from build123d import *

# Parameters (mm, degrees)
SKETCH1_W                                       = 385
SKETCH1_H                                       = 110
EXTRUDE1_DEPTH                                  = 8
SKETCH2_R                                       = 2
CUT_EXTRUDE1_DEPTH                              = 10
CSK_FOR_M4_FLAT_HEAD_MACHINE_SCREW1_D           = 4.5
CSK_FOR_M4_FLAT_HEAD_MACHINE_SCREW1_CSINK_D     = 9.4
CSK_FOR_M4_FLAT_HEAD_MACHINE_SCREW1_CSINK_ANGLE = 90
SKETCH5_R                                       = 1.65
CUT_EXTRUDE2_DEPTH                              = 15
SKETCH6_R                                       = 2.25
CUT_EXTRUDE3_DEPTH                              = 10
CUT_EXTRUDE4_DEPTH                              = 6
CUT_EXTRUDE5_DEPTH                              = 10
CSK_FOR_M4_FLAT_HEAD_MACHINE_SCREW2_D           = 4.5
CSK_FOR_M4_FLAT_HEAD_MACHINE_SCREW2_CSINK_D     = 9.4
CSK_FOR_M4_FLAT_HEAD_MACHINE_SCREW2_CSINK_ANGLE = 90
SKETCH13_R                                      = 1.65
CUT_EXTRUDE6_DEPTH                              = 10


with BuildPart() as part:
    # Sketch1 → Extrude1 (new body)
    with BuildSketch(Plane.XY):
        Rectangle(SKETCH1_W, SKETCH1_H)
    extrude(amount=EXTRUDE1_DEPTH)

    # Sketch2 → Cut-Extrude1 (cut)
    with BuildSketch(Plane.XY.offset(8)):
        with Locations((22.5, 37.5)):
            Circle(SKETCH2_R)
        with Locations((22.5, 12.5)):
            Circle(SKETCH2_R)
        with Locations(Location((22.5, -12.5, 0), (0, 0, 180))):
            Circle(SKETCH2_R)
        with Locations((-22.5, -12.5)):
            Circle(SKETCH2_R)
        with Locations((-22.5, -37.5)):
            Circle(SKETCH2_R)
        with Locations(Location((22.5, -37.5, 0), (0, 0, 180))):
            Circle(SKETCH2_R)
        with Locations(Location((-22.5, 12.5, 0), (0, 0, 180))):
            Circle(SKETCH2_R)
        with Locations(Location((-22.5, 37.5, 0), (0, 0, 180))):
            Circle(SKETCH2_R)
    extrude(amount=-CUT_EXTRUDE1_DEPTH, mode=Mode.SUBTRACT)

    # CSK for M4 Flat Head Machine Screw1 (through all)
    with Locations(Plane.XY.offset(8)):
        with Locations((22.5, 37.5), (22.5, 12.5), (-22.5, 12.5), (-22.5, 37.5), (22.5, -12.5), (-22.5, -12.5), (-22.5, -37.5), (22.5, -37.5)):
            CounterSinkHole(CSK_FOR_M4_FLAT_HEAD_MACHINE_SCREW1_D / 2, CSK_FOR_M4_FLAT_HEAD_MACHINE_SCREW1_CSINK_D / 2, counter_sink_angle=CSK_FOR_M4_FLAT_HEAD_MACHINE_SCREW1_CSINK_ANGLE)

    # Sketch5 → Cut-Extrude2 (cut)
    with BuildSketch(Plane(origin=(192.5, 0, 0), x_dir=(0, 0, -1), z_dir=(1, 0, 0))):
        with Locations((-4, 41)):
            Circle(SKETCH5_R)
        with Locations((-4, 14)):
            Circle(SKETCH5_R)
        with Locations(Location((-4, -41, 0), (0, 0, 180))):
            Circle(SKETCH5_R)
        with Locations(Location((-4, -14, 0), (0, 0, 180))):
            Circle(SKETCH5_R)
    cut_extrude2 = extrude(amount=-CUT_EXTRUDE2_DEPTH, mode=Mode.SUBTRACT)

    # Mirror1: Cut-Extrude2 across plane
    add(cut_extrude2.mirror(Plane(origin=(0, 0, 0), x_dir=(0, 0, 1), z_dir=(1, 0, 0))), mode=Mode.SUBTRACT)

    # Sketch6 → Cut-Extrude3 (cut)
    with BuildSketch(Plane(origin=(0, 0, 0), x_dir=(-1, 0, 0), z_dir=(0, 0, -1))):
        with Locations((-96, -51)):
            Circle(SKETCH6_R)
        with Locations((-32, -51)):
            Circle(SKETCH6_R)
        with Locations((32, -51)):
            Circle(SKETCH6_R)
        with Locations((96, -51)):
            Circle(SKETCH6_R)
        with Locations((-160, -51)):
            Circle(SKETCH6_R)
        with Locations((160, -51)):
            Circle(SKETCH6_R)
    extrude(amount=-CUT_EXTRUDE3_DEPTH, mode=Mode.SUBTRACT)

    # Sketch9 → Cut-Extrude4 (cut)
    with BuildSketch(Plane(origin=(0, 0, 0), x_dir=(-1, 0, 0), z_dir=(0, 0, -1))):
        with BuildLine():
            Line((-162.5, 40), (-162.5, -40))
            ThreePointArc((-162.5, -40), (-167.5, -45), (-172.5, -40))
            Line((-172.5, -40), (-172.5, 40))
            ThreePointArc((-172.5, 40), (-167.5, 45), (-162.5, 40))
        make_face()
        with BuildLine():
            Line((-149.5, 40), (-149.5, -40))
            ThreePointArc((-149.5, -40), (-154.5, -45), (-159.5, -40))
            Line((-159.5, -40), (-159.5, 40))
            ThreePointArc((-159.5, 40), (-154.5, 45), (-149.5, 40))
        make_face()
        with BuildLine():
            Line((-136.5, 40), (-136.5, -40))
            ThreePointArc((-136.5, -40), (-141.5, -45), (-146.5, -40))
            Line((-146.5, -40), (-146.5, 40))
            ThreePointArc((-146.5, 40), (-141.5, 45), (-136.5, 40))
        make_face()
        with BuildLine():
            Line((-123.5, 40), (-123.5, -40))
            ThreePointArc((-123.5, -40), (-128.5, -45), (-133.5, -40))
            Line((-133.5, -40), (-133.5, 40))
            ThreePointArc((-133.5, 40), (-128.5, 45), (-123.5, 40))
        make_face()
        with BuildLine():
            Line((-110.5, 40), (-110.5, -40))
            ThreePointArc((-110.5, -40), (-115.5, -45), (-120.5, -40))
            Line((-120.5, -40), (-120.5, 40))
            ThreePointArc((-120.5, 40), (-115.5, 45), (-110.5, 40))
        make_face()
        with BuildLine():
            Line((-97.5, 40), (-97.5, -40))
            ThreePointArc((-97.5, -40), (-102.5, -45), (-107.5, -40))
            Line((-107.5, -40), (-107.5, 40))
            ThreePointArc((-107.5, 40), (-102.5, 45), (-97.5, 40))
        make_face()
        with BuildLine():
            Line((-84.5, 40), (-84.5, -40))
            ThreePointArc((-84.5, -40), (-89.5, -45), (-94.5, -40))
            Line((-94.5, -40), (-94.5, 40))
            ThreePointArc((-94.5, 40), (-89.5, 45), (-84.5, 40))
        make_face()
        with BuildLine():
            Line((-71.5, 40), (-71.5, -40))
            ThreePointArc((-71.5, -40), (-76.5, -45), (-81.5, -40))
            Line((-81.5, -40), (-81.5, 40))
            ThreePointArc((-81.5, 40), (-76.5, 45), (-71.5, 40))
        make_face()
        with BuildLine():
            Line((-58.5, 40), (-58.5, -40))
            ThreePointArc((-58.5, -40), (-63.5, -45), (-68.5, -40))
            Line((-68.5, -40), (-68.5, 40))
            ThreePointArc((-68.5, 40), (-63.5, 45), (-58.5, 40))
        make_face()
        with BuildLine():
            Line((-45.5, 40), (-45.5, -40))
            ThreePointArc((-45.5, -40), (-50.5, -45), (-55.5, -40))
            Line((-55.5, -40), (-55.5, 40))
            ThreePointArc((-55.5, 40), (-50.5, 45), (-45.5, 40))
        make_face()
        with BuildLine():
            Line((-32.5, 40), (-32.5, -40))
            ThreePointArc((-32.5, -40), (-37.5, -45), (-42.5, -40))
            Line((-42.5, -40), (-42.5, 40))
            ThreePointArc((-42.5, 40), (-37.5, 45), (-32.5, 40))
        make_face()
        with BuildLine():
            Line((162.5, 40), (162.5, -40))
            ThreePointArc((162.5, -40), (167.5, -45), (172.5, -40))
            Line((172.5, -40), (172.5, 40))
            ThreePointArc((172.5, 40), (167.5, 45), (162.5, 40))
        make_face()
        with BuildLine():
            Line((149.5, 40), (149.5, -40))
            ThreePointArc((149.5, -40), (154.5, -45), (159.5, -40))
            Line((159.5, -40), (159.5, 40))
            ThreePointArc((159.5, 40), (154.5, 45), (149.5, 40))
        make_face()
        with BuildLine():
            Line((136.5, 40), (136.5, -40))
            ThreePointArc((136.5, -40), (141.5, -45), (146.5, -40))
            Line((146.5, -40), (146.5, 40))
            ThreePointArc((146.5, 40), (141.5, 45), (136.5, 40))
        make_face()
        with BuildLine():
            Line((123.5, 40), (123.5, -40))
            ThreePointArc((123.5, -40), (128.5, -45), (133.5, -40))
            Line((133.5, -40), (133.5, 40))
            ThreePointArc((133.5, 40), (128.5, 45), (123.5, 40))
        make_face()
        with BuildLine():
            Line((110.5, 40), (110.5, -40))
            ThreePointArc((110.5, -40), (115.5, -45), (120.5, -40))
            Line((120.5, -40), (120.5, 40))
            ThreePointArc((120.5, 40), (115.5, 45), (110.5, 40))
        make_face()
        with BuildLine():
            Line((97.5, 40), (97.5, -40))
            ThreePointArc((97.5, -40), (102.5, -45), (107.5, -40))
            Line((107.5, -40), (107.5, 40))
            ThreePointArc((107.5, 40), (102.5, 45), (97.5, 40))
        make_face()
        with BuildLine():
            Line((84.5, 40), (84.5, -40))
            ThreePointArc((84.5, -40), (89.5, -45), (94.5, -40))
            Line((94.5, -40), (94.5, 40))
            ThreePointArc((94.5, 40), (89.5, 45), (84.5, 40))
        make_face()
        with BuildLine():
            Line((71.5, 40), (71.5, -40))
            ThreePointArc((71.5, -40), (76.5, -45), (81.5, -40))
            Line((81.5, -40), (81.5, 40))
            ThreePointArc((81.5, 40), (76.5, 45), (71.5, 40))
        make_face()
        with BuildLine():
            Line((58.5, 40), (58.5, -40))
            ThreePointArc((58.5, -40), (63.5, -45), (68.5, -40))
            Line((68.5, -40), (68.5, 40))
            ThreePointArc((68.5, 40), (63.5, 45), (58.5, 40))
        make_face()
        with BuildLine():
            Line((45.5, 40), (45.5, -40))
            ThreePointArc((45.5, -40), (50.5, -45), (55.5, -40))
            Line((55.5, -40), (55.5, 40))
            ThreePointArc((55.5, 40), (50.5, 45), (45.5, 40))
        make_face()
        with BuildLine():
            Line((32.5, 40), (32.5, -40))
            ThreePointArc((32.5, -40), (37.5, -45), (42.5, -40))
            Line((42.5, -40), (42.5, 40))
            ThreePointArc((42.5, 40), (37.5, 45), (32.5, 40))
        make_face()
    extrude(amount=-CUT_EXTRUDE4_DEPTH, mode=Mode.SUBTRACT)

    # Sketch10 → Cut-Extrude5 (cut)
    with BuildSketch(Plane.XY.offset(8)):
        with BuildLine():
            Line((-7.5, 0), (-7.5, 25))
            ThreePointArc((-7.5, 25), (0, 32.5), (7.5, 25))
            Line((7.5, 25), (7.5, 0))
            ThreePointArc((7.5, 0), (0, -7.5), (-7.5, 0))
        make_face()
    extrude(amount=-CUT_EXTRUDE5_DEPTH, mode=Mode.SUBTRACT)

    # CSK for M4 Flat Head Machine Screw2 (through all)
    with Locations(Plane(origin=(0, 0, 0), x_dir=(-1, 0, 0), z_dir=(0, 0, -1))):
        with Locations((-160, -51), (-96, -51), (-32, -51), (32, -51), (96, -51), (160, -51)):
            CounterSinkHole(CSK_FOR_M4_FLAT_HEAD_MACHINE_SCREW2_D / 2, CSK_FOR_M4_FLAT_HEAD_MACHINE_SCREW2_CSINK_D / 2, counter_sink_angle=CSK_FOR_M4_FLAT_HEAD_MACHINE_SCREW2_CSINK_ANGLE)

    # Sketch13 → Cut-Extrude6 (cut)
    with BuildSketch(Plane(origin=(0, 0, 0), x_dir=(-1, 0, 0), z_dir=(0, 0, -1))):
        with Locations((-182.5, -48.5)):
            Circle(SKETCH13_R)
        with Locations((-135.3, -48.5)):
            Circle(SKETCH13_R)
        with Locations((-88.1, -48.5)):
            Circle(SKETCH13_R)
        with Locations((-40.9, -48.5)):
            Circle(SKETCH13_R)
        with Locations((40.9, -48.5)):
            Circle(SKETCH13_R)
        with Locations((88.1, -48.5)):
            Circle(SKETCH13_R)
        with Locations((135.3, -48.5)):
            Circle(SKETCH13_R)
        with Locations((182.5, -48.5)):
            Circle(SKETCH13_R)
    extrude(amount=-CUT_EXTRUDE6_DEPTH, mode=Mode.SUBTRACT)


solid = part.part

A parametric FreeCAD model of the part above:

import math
import FreeCAD as App
import Part
import Sketcher

V = App.Vector


def add_polygon(sketch, points):
    """Adds a closed chain of lines whose ends are joined by coincident constraints."""
    first, n = sketch.GeometryCount, len(points)
    for a, b in zip(points, points[1:] + points[:1]):
        sketch.addGeometry(Part.LineSegment(App.Vector(*a, 0), App.Vector(*b, 0)), False)
    for i in range(n):
        sketch.addConstraint(Sketcher.Constraint("Coincident", first + i, 2, first + (i + 1) % n, 1))

doc = App.newDocument("Part")
body = doc.addObject("PartDesign::Body", "Body")

# Sketch on XY plane
sketch1 = body.newObject("Sketcher::SketchObject", "Sketch")
sketch1.AttachmentSupport = (doc.getObject("XY_Plane"), [""])
sketch1.MapMode = "FlatFace"
add_polygon(sketch1, [(-192, 55), (-192, -55), (192, -55), (192, 55)])  # lines 0-3
sketch1.addConstraint([
    Sketcher.Constraint("Vertical", 0),
    Sketcher.Constraint("Horizontal", 1),
    Sketcher.Constraint("Vertical", 2),
    Sketcher.Constraint("Horizontal", 3),
    Sketcher.Constraint("Symmetric", 0, 2, 2, 2, -1, 1),
    Sketcher.Constraint("DistanceX", 1, 1, 1, 2, 385.0),
    Sketcher.Constraint("DistanceY", 0, 2, 0, 1, 110.0),
])
pad1 = body.newObject("PartDesign::Pad", "Pad")
pad1.Profile = sketch1
pad1.Length = 8

# Sketch on XY plane
sketch2 = body.newObject("Sketcher::SketchObject", "Sketch001")
sketch2.AttachmentSupport = (doc.getObject("XY_Plane"), [""])
sketch2.MapMode = "FlatFace"
sketch2.AttachmentOffset = App.Placement(V(0, 0, 8), App.Rotation())
sketch2.addGeometry([
    Part.Circle(V(22.5, 37.5, 0), V(0, 0, 1), 2),  # 0
    Part.Circle(V(22.5, 12.5, 0), V(0, 0, 1), 2),  # 1
    Part.Circle(V(22.5, -12.5, 0), V(0, 0, 1), 2),  # 2
    Part.Circle(V(-22.5, -12.5, 0), V(0, 0, 1), 2),  # 3
    Part.Circle(V(-22.5, -37.5, 0), V(0, 0, 1), 2),  # 4
    Part.Circle(V(22.5, -37.5, 0), V(0, 0, 1), 2),  # 5
    Part.Circle(V(-22.5, 12.5, 0), V(0, 0, 1), 2),  # 6
    Part.Circle(V(-22.5, 37.5, 0), V(0, 0, 1), 2),  # 7
], False)
sketch2.addConstraint([
    Sketcher.Constraint("Equal", 0, 1),
    Sketcher.Constraint("Equal", 1, 2),
    Sketcher.Constraint("Equal", 2, 3),
    Sketcher.Constraint("Equal", 3, 4),
    Sketcher.Constraint("Equal", 4, 5),
    Sketcher.Constraint("Equal", 5, 6),
    Sketcher.Constraint("Equal", 6, 7),
    Sketcher.Constraint("Symmetric", 1, 3, 3, 3, -1, 1),
    Sketcher.Constraint("Symmetric", 0, 3, 4, 3, -1, 1),
    Sketcher.Constraint("Symmetric", 2, 3, 6, 3, -1, 1),
    Sketcher.Constraint("Symmetric", 5, 3, 7, 3, -1, 1),
    Sketcher.Constraint("Symmetric", 2, 3, 3, 3, -2),
    Sketcher.Constraint("Symmetric", 4, 3, 5, 3, -2),
    Sketcher.Constraint("Vertical", 0, 3, 1, 3),
    Sketcher.Constraint("Diameter", 0, 4.0),
    Sketcher.Constraint("DistanceY", 1, 3, 0, 3, 25.0),
    Sketcher.Constraint("DistanceY", 2, 3, 1, 3, 25.0),
    Sketcher.Constraint("DistanceX", 3, 3, 2, 3, 45.0),
])
pocket1 = body.newObject("PartDesign::Pocket", "Pocket")
pocket1.Profile = sketch2
pocket1.Length = 10

# Sketch on XY plane
sketch3 = body.newObject("Sketcher::SketchObject", "Sketch002")
sketch3.AttachmentSupport = (doc.getObject("XY_Plane"), [""])
sketch3.MapMode = "FlatFace"
sketch3.AttachmentOffset = App.Placement(V(0, 0, 8), App.Rotation())
sketch3.addGeometry([
    Part.Circle(V(22.5, 37.5, 0), V(0, 0, 1), 2.2),  # 0
    Part.Circle(V(22.5, 12.5, 0), V(0, 0, 1), 2.2),  # 1
    Part.Circle(V(-22.5, 12.5, 0), V(0, 0, 1), 2.2),  # 2
    Part.Circle(V(-22.5, 37.5, 0), V(0, 0, 1), 2.2),  # 3
    Part.Circle(V(22.5, -12.5, 0), V(0, 0, 1), 2.2),  # 4
    Part.Circle(V(-22.5, -12.5, 0), V(0, 0, 1), 2.2),  # 5
    Part.Circle(V(-22.5, -37.5, 0), V(0, 0, 1), 2.2),  # 6
    Part.Circle(V(22.5, -37.5, 0), V(0, 0, 1), 2.2),  # 7
], False)
sketch3.addConstraint([
    Sketcher.Constraint("Equal", 0, 1),
    Sketcher.Constraint("Equal", 1, 2),
    Sketcher.Constraint("Equal", 2, 3),
    Sketcher.Constraint("Equal", 3, 4),
    Sketcher.Constraint("Equal", 4, 5),
    Sketcher.Constraint("Equal", 5, 6),
    Sketcher.Constraint("Equal", 6, 7),
    Sketcher.Constraint("Symmetric", 2, 3, 4, 3, -1, 1),
    Sketcher.Constraint("Symmetric", 1, 3, 5, 3, -1, 1),
    Sketcher.Constraint("Symmetric", 0, 3, 6, 3, -1, 1),
    Sketcher.Constraint("Symmetric", 3, 3, 7, 3, -1, 1),
    Sketcher.Constraint("Symmetric", 1, 3, 2, 3, -2),
    Sketcher.Constraint("Symmetric", 0, 3, 3, 3, -2),
    Sketcher.Constraint("Vertical", 0, 3, 1, 3),
    Sketcher.Constraint("Diameter", 0, 4.5),
    Sketcher.Constraint("DistanceY", 1, 3, 0, 3, 25.0),
    Sketcher.Constraint("DistanceX", 2, 3, 1, 3, 45.0),
    Sketcher.Constraint("DistanceY", 4, 3, 1, 3, 25.0),
])
doc.recompute()
hole = body.newObject("PartDesign::Hole", "Hole")
hole.Profile = sketch3
hole.ThreadType = "None"
hole.Diameter = 4.5
hole.DepthType = "ThroughAll"
hole.HoleCutType = "Countersink"
hole.HoleCutDiameter = 9.4
hole.HoleCutCountersinkAngle = 90

# Sketch on YZ plane
sketch4 = body.newObject("Sketcher::SketchObject", "Sketch003")
sketch4.AttachmentSupport = (doc.getObject("YZ_Plane"), [""])
sketch4.MapMode = "FlatFace"
sketch4.AttachmentOffset = App.Placement(V(0, 0, 192.5), App.Rotation())
sketch4.addGeometry([
    Part.Circle(V(41, 4, 0), V(0, 0, 1), 1.6),
    Part.Circle(V(14, 4, 0), V(0, 0, 1), 1.6),
    Part.Circle(V(-41, 4, 0), V(0, 0, 1), 1.6),
    Part.Circle(V(-14, 4, 0), V(0, 0, 1), 1.6),
], False)
sketch4.addConstraint([
    Sketcher.Constraint("Equal", 0, 1),
    Sketcher.Constraint("Equal", 1, 2),
    Sketcher.Constraint("Equal", 2, 3),
    Sketcher.Constraint("Symmetric", 0, 3, 2, 3, -2),
    Sketcher.Constraint("Symmetric", 1, 3, 3, 3, -2),
    Sketcher.Constraint("Horizontal", 0, 3, 1, 3),
    Sketcher.Constraint("Diameter", 0, 3.3),
    Sketcher.Constraint("DistanceX", -1, 1, 0, 3, 41.0),
    Sketcher.Constraint("DistanceY", -1, 1, 0, 3, 4.0),
    Sketcher.Constraint("DistanceX", -1, 1, 1, 3, 14.0),
])
pocket2 = body.newObject("PartDesign::Pocket", "Pocket001")
pocket2.Profile = sketch4
pocket2.Length = 15
doc.recompute()

mirrored = body.newObject("PartDesign::Mirrored", "Mirrored")
mirrored.Originals = [pocket2]
mirrored.MirrorPlane = (doc.getObject("YZ_Plane"), [""])
body.Tip = mirrored

# Sketch on XY plane
sketch5 = body.newObject("Sketcher::SketchObject", "Sketch004")
sketch5.AttachmentSupport = (doc.getObject("XY_Plane"), [""])
sketch5.MapMode = "FlatFace"
sketch5.addGeometry([
    Part.Circle(V(96, -51, 0), V(0, 0, 1), 2.2),  # 0
    Part.Circle(V(32, -51, 0), V(0, 0, 1), 2.2),  # 1
    Part.Circle(V(-32, -51, 0), V(0, 0, 1), 2.2),  # 2
    Part.Circle(V(-96, -51, 0), V(0, 0, 1), 2.2),  # 3
    Part.Circle(V(160, -51, 0), V(0, 0, 1), 2.2),  # 4
    Part.Circle(V(-160, -51, 0), V(0, 0, 1), 2.2),  # 5
], False)
sketch5.addConstraint([
    Sketcher.Constraint("Equal", 0, 1),
    Sketcher.Constraint("Equal", 1, 2),
    Sketcher.Constraint("Equal", 2, 3),
    Sketcher.Constraint("Equal", 3, 4),
    Sketcher.Constraint("Equal", 4, 5),
    Sketcher.Constraint("Symmetric", 1, 3, 2, 3, -2),
    Sketcher.Constraint("Symmetric", 0, 3, 3, 3, -2),
    Sketcher.Constraint("Symmetric", 4, 3, 5, 3, -2),
    Sketcher.Constraint("Horizontal", 0, 3, 1, 3),
    Sketcher.Constraint("Horizontal", 3, 3, 4, 3),
    Sketcher.Constraint("Diameter", 0, 4.5),
    Sketcher.Constraint("DistanceX", -1, 1, 0, 3, 96.0),
    Sketcher.Constraint("DistanceY", 0, 3, -1, 1, 51.0),
    Sketcher.Constraint("DistanceX", -1, 1, 1, 3, 32.0),
    Sketcher.Constraint("DistanceX", -1, 1, 4, 3, 160.0),
])
pocket3 = body.newObject("PartDesign::Pocket", "Pocket002")
pocket3.Profile = sketch5
pocket3.Length = 10
pocket3.Reversed = True

# Sketch on XY plane
sketch6 = body.newObject("Sketcher::SketchObject", "Sketch005")
sketch6.AttachmentSupport = (doc.getObject("XY_Plane"), [""])
sketch6.MapMode = "FlatFace"
sketch6.addGeometry([
    Part.LineSegment(V(162, -40, 0), V(162, 40, 0)),  # 0
    Part.ArcOfCircle(Part.Circle(V(168, 40, 0), V(0, 0, 1), 5), math.radians(0), math.radians(180)),  # 1
    Part.LineSegment(V(172, 40, 0), V(172, -40, 0)),  # 2
    Part.ArcOfCircle(Part.Circle(V(168, -40, 0), V(0, 0, 1), 5), math.radians(180), math.radians(360)),  # 3
    Part.LineSegment(V(150, -40, 0), V(150, 40, 0)),  # 4
    Part.ArcOfCircle(Part.Circle(V(154, 40, 0), V(0, 0, 1), 5), math.radians(0), math.radians(180)),  # 5
    Part.LineSegment(V(160, 40, 0), V(160, -40, 0)),  # 6
    Part.ArcOfCircle(Part.Circle(V(154, -40, 0), V(0, 0, 1), 5), math.radians(180), math.radians(360)),  # 7
    Part.LineSegment(V(136, -40, 0), V(136, 40, 0)),  # 8
    Part.ArcOfCircle(Part.Circle(V(142, 40, 0), V(0, 0, 1), 5), math.radians(0), math.radians(180)),  # 9
    Part.LineSegment(V(146, 40, 0), V(146, -40, 0)),  # 10
    Part.ArcOfCircle(Part.Circle(V(142, -40, 0), V(0, 0, 1), 5), math.radians(180), math.radians(360)),  # 11
    Part.LineSegment(V(124, -40, 0), V(124, 40, 0)),  # 12
    Part.ArcOfCircle(Part.Circle(V(128, 40, 0), V(0, 0, 1), 5), math.radians(0), math.radians(180)),  # 13
    Part.LineSegment(V(134, 40, 0), V(134, -40, 0)),  # 14
    Part.ArcOfCircle(Part.Circle(V(128, -40, 0), V(0, 0, 1), 5), math.radians(180), math.radians(360)),  # 15
    Part.LineSegment(V(110, -40, 0), V(110, 40, 0)),  # 16
    Part.ArcOfCircle(Part.Circle(V(116, 40, 0), V(0, 0, 1), 5), math.radians(0), math.radians(180)),  # 17
    Part.LineSegment(V(120, 40, 0), V(120, -40, 0)),  # 18
    Part.ArcOfCircle(Part.Circle(V(116, -40, 0), V(0, 0, 1), 5), math.radians(180), math.radians(360)),  # 19
    Part.LineSegment(V(98, -40, 0), V(98, 40, 0)),  # 20
    Part.ArcOfCircle(Part.Circle(V(102, 40, 0), V(0, 0, 1), 5), math.radians(0), math.radians(180)),  # 21
    Part.LineSegment(V(108, 40, 0), V(108, -40, 0)),  # 22
    Part.ArcOfCircle(Part.Circle(V(102, -40, 0), V(0, 0, 1), 5), math.radians(180), math.radians(360)),  # 23
    Part.LineSegment(V(84, -40, 0), V(84, 40, 0)),  # 24
    Part.ArcOfCircle(Part.Circle(V(90, 40, 0), V(0, 0, 1), 5), math.radians(0), math.radians(180)),  # 25
    Part.LineSegment(V(94, 40, 0), V(94, -40, 0)),  # 26
    Part.ArcOfCircle(Part.Circle(V(90, -40, 0), V(0, 0, 1), 5), math.radians(180), math.radians(360)),  # 27
    Part.LineSegment(V(72, -40, 0), V(72, 40, 0)),  # 28
    Part.ArcOfCircle(Part.Circle(V(76, 40, 0), V(0, 0, 1), 5), math.radians(0), math.radians(180)),  # 29
    Part.LineSegment(V(82, 40, 0), V(82, -40, 0)),  # 30
    Part.ArcOfCircle(Part.Circle(V(76, -40, 0), V(0, 0, 1), 5), math.radians(180), math.radians(360)),  # 31
    Part.LineSegment(V(58, -40, 0), V(58, 40, 0)),  # 32
    Part.ArcOfCircle(Part.Circle(V(64, 40, 0), V(0, 0, 1), 5), math.radians(0), math.radians(180)),  # 33
    Part.LineSegment(V(68, 40, 0), V(68, -40, 0)),  # 34
    Part.ArcOfCircle(Part.Circle(V(64, -40, 0), V(0, 0, 1), 5), math.radians(180), math.radians(360)),  # 35
    Part.LineSegment(V(46, -40, 0), V(46, 40, 0)),  # 36
    Part.ArcOfCircle(Part.Circle(V(50, 40, 0), V(0, 0, 1), 5), math.radians(0), math.radians(180)),  # 37
    Part.LineSegment(V(56, 40, 0), V(56, -40, 0)),  # 38
    Part.ArcOfCircle(Part.Circle(V(50, -40, 0), V(0, 0, 1), 5), math.radians(180), math.radians(360)),  # 39
    Part.LineSegment(V(32, -40, 0), V(32, 40, 0)),  # 40
    Part.ArcOfCircle(Part.Circle(V(38, 40, 0), V(0, 0, 1), 5), math.radians(0), math.radians(180)),  # 41
    Part.LineSegment(V(42, 40, 0), V(42, -40, 0)),  # 42
    Part.ArcOfCircle(Part.Circle(V(38, -40, 0), V(0, 0, 1), 5), math.radians(180), math.radians(360)),  # 43
    Part.LineSegment(V(-162, 40, 0), V(-162, -40, 0)),  # 44
    Part.ArcOfCircle(Part.Circle(V(-168, -40, 0), V(0, 0, 1), 5), math.radians(180), math.radians(360)),  # 45
    Part.LineSegment(V(-172, -40, 0), V(-172, 40, 0)),  # 46
    Part.ArcOfCircle(Part.Circle(V(-168, 40, 0), V(0, 0, 1), 5), math.radians(0), math.radians(180)),  # 47
    Part.LineSegment(V(-150, 40, 0), V(-150, -40, 0)),  # 48
    Part.ArcOfCircle(Part.Circle(V(-154, -40, 0), V(0, 0, 1), 5), math.radians(180), math.radians(360)),  # 49
    Part.LineSegment(V(-160, -40, 0), V(-160, 40, 0)),  # 50
    Part.ArcOfCircle(Part.Circle(V(-154, 40, 0), V(0, 0, 1), 5), math.radians(0), math.radians(180)),  # 51
    Part.LineSegment(V(-136, 40, 0), V(-136, -40, 0)),  # 52
    Part.ArcOfCircle(Part.Circle(V(-142, -40, 0), V(0, 0, 1), 5), math.radians(180), math.radians(360)),  # 53
    Part.LineSegment(V(-146, -40, 0), V(-146, 40, 0)),  # 54
    Part.ArcOfCircle(Part.Circle(V(-142, 40, 0), V(0, 0, 1), 5), math.radians(0), math.radians(180)),  # 55
    Part.LineSegment(V(-124, 40, 0), V(-124, -40, 0)),  # 56
    Part.ArcOfCircle(Part.Circle(V(-128, -40, 0), V(0, 0, 1), 5), math.radians(180), math.radians(360)),  # 57
    Part.LineSegment(V(-134, -40, 0), V(-134, 40, 0)),  # 58
    Part.ArcOfCircle(Part.Circle(V(-128, 40, 0), V(0, 0, 1), 5), math.radians(0), math.radians(180)),  # 59
    Part.LineSegment(V(-110, 40, 0), V(-110, -40, 0)),  # 60
    Part.ArcOfCircle(Part.Circle(V(-116, -40, 0), V(0, 0, 1), 5), math.radians(180), math.radians(360)),  # 61
    Part.LineSegment(V(-120, -40, 0), V(-120, 40, 0)),  # 62
    Part.ArcOfCircle(Part.Circle(V(-116, 40, 0), V(0, 0, 1), 5), math.radians(0), math.radians(180)),  # 63
    Part.LineSegment(V(-98, 40, 0), V(-98, -40, 0)),  # 64
    Part.ArcOfCircle(Part.Circle(V(-102, -40, 0), V(0, 0, 1), 5), math.radians(180), math.radians(360)),  # 65
    Part.LineSegment(V(-108, -40, 0), V(-108, 40, 0)),  # 66
    Part.ArcOfCircle(Part.Circle(V(-102, 40, 0), V(0, 0, 1), 5), math.radians(0), math.radians(180)),  # 67
    Part.LineSegment(V(-84, 40, 0), V(-84, -40, 0)),  # 68
    Part.ArcOfCircle(Part.Circle(V(-90, -40, 0), V(0, 0, 1), 5), math.radians(180), math.radians(360)),  # 69
    Part.LineSegment(V(-94, -40, 0), V(-94, 40, 0)),  # 70
    Part.ArcOfCircle(Part.Circle(V(-90, 40, 0), V(0, 0, 1), 5), math.radians(0), math.radians(180)),  # 71
    Part.LineSegment(V(-72, 40, 0), V(-72, -40, 0)),  # 72
    Part.ArcOfCircle(Part.Circle(V(-76, -40, 0), V(0, 0, 1), 5), math.radians(180), math.radians(360)),  # 73
    Part.LineSegment(V(-82, -40, 0), V(-82, 40, 0)),  # 74
    Part.ArcOfCircle(Part.Circle(V(-76, 40, 0), V(0, 0, 1), 5), math.radians(0), math.radians(180)),  # 75
    Part.LineSegment(V(-58, 40, 0), V(-58, -40, 0)),  # 76
    Part.ArcOfCircle(Part.Circle(V(-64, -40, 0), V(0, 0, 1), 5), math.radians(180), math.radians(360)),  # 77
    Part.LineSegment(V(-68, -40, 0), V(-68, 40, 0)),  # 78
    Part.ArcOfCircle(Part.Circle(V(-64, 40, 0), V(0, 0, 1), 5), math.radians(0), math.radians(180)),  # 79
    Part.LineSegment(V(-46, 40, 0), V(-46, -40, 0)),  # 80
    Part.ArcOfCircle(Part.Circle(V(-50, -40, 0), V(0, 0, 1), 5), math.radians(180), math.radians(360)),  # 81
    Part.LineSegment(V(-56, -40, 0), V(-56, 40, 0)),  # 82
    Part.ArcOfCircle(Part.Circle(V(-50, 40, 0), V(0, 0, 1), 5), math.radians(0), math.radians(180)),  # 83
    Part.LineSegment(V(-32, 40, 0), V(-32, -40, 0)),  # 84
    Part.ArcOfCircle(Part.Circle(V(-38, -40, 0), V(0, 0, 1), 5), math.radians(180), math.radians(360)),  # 85
    Part.LineSegment(V(-42, -40, 0), V(-42, 40, 0)),  # 86
    Part.ArcOfCircle(Part.Circle(V(-38, 40, 0), V(0, 0, 1), 5), math.radians(0), math.radians(180)),  # 87
], False)
sketch6.addConstraint([
    Sketcher.Constraint("Tangent", 0, 2, 1, 2),
    Sketcher.Constraint("Tangent", 1, 1, 2, 1),
    Sketcher.Constraint("Tangent", 2, 2, 3, 2),
    Sketcher.Constraint("Tangent", 3, 1, 0, 1),
    Sketcher.Constraint("Tangent", 4, 2, 5, 2),
    Sketcher.Constraint("Tangent", 5, 1, 6, 1),
    Sketcher.Constraint("Tangent", 6, 2, 7, 2),
    Sketcher.Constraint("Tangent", 7, 1, 4, 1),
    Sketcher.Constraint("Tangent", 8, 2, 9, 2),
    Sketcher.Constraint("Tangent", 9, 1, 10, 1),
    Sketcher.Constraint("Tangent", 10, 2, 11, 2),
    Sketcher.Constraint("Tangent", 11, 1, 8, 1),
    Sketcher.Constraint("Tangent", 12, 2, 13, 2),
    Sketcher.Constraint("Tangent", 13, 1, 14, 1),
    Sketcher.Constraint("Tangent", 14, 2, 15, 2),
    Sketcher.Constraint("Tangent", 15, 1, 12, 1),
    Sketcher.Constraint("Tangent", 16, 2, 17, 2),
    Sketcher.Constraint("Tangent", 17, 1, 18, 1),
    Sketcher.Constraint("Tangent", 18, 2, 19, 2),
    Sketcher.Constraint("Tangent", 19, 1, 16, 1),
    Sketcher.Constraint("Tangent", 20, 2, 21, 2),
    Sketcher.Constraint("Tangent", 21, 1, 22, 1),
    Sketcher.Constraint("Tangent", 22, 2, 23, 2),
    Sketcher.Constraint("Tangent", 23, 1, 20, 1),
    Sketcher.Constraint("Tangent", 24, 2, 25, 2),
    Sketcher.Constraint("Tangent", 25, 1, 26, 1),
    Sketcher.Constraint("Tangent", 26, 2, 27, 2),
    Sketcher.Constraint("Tangent", 27, 1, 24, 1),
    Sketcher.Constraint("Tangent", 28, 2, 29, 2),
    Sketcher.Constraint("Tangent", 29, 1, 30, 1),
    Sketcher.Constraint("Tangent", 30, 2, 31, 2),
    Sketcher.Constraint("Tangent", 31, 1, 28, 1),
    Sketcher.Constraint("Tangent", 32, 2, 33, 2),
    Sketcher.Constraint("Tangent", 33, 1, 34, 1),
    Sketcher.Constraint("Tangent", 34, 2, 35, 2),
    Sketcher.Constraint("Tangent", 35, 1, 32, 1),
    Sketcher.Constraint("Tangent", 36, 2, 37, 2),
    Sketcher.Constraint("Tangent", 37, 1, 38, 1),
    Sketcher.Constraint("Tangent", 38, 2, 39, 2),
    Sketcher.Constraint("Tangent", 39, 1, 36, 1),
    Sketcher.Constraint("Tangent", 40, 2, 41, 2),
    Sketcher.Constraint("Tangent", 41, 1, 42, 1),
    Sketcher.Constraint("Tangent", 42, 2, 43, 2),
    Sketcher.Constraint("Tangent", 43, 1, 40, 1),
    Sketcher.Constraint("Tangent", 44, 2, 45, 2),
    Sketcher.Constraint("Tangent", 45, 1, 46, 1),
    Sketcher.Constraint("Tangent", 46, 2, 47, 2),
    Sketcher.Constraint("Tangent", 47, 1, 44, 1),
    Sketcher.Constraint("Tangent", 48, 2, 49, 2),
    Sketcher.Constraint("Tangent", 49, 1, 50, 1),
    Sketcher.Constraint("Tangent", 50, 2, 51, 2),
    Sketcher.Constraint("Tangent", 51, 1, 48, 1),
    Sketcher.Constraint("Tangent", 52, 2, 53, 2),
    Sketcher.Constraint("Tangent", 53, 1, 54, 1),
    Sketcher.Constraint("Tangent", 54, 2, 55, 2),
    Sketcher.Constraint("Tangent", 55, 1, 52, 1),
    Sketcher.Constraint("Tangent", 56, 2, 57, 2),
    Sketcher.Constraint("Tangent", 57, 1, 58, 1),
    Sketcher.Constraint("Tangent", 58, 2, 59, 2),
    Sketcher.Constraint("Tangent", 59, 1, 56, 1),
    Sketcher.Constraint("Tangent", 60, 2, 61, 2),
    Sketcher.Constraint("Tangent", 61, 1, 62, 1),
    Sketcher.Constraint("Tangent", 62, 2, 63, 2),
    Sketcher.Constraint("Tangent", 63, 1, 60, 1),
    Sketcher.Constraint("Tangent", 64, 2, 65, 2),
    Sketcher.Constraint("Tangent", 65, 1, 66, 1),
    Sketcher.Constraint("Tangent", 66, 2, 67, 2),
    Sketcher.Constraint("Tangent", 67, 1, 64, 1),
    Sketcher.Constraint("Tangent", 68, 2, 69, 2),
    Sketcher.Constraint("Tangent", 69, 1, 70, 1),
    Sketcher.Constraint("Tangent", 70, 2, 71, 2),
    Sketcher.Constraint("Tangent", 71, 1, 68, 1),
    Sketcher.Constraint("Tangent", 72, 2, 73, 2),
    Sketcher.Constraint("Tangent", 73, 1, 74, 1),
    Sketcher.Constraint("Tangent", 74, 2, 75, 2),
    Sketcher.Constraint("Tangent", 75, 1, 72, 1),
    Sketcher.Constraint("Tangent", 76, 2, 77, 2),
    Sketcher.Constraint("Tangent", 77, 1, 78, 1),
    Sketcher.Constraint("Tangent", 78, 2, 79, 2),
    Sketcher.Constraint("Tangent", 79, 1, 76, 1),
    Sketcher.Constraint("Tangent", 80, 2, 81, 2),
    Sketcher.Constraint("Tangent", 81, 1, 82, 1),
    Sketcher.Constraint("Tangent", 82, 2, 83, 2),
    Sketcher.Constraint("Tangent", 83, 1, 80, 1),
    Sketcher.Constraint("Tangent", 84, 2, 85, 2),
    Sketcher.Constraint("Tangent", 85, 1, 86, 1),
    Sketcher.Constraint("Tangent", 86, 2, 87, 2),
    Sketcher.Constraint("Tangent", 87, 1, 84, 1),
    Sketcher.Constraint("Vertical", 0),
    Sketcher.Constraint("Vertical", 2),
    Sketcher.Constraint("Vertical", 4),
    Sketcher.Constraint("Vertical", 6),
    Sketcher.Constraint("Vertical", 8),
    Sketcher.Constraint("Vertical", 10),
    Sketcher.Constraint("Vertical", 12),
    Sketcher.Constraint("Vertical", 14),
    Sketcher.Constraint("Vertical", 16),
    Sketcher.Constraint("Vertical", 18),
    Sketcher.Constraint("Vertical", 20),
    Sketcher.Constraint("Vertical", 22),
    Sketcher.Constraint("Vertical", 24),
    Sketcher.Constraint("Vertical", 26),
    Sketcher.Constraint("Vertical", 28),
    Sketcher.Constraint("Vertical", 30),
    Sketcher.Constraint("Vertical", 32),
    Sketcher.Constraint("Vertical", 34),
    Sketcher.Constraint("Vertical", 36),
    Sketcher.Constraint("Vertical", 38),
    Sketcher.Constraint("Vertical", 40),
    Sketcher.Constraint("Vertical", 42),
    Sketcher.Constraint("Vertical", 44),
    Sketcher.Constraint("Vertical", 46),
    Sketcher.Constraint("Vertical", 48),
    Sketcher.Constraint("Vertical", 50),
    Sketcher.Constraint("Vertical", 52),
    Sketcher.Constraint("Vertical", 54),
    Sketcher.Constraint("Vertical", 56),
    Sketcher.Constraint("Vertical", 58),
    Sketcher.Constraint("Vertical", 60),
    Sketcher.Constraint("Vertical", 62),
    Sketcher.Constraint("Vertical", 64),
    Sketcher.Constraint("Vertical", 66),
    Sketcher.Constraint("Vertical", 68),
    Sketcher.Constraint("Vertical", 70),
    Sketcher.Constraint("Vertical", 72),
    Sketcher.Constraint("Vertical", 74),
    Sketcher.Constraint("Vertical", 76),
    Sketcher.Constraint("Vertical", 78),
    Sketcher.Constraint("Vertical", 80),
    Sketcher.Constraint("Vertical", 82),
    Sketcher.Constraint("Vertical", 84),
    Sketcher.Constraint("Vertical", 86),
    Sketcher.Constraint("Equal", 3, 5),
    Sketcher.Constraint("Equal", 7, 9),
    Sketcher.Constraint("Equal", 11, 13),
    Sketcher.Constraint("Equal", 15, 17),
    Sketcher.Constraint("Equal", 19, 21),
    Sketcher.Constraint("Equal", 23, 25),
    Sketcher.Constraint("Equal", 27, 29),
    Sketcher.Constraint("Equal", 31, 33),
    Sketcher.Constraint("Equal", 35, 37),
    Sketcher.Constraint("Equal", 39, 41),
    Sketcher.Constraint("Equal", 43, 45),
    Sketcher.Constraint("Equal", 47, 49),
    Sketcher.Constraint("Equal", 51, 53),
    Sketcher.Constraint("Equal", 55, 57),
    Sketcher.Constraint("Equal", 59, 61),
    Sketcher.Constraint("Equal", 63, 65),
    Sketcher.Constraint("Equal", 67, 69),
    Sketcher.Constraint("Equal", 71, 73),
    Sketcher.Constraint("Equal", 75, 77),
    Sketcher.Constraint("Equal", 79, 81),
    Sketcher.Constraint("Equal", 83, 85),
    Sketcher.Constraint("Symmetric", 1, 3, 45, 3, -1, 1),
    Sketcher.Constraint("Symmetric", 5, 3, 49, 3, -1, 1),
    Sketcher.Constraint("Symmetric", 9, 3, 53, 3, -1, 1),
    Sketcher.Constraint("Symmetric", 13, 3, 57, 3, -1, 1),
    Sketcher.Constraint("Symmetric", 17, 3, 61, 3, -1, 1),
    Sketcher.Constraint("Symmetric", 21, 3, 65, 3, -1, 1),
    Sketcher.Constraint("Symmetric", 25, 3, 69, 3, -1, 1),
    Sketcher.Constraint("Symmetric", 29, 3, 73, 3, -1, 1),
    Sketcher.Constraint("Symmetric", 33, 3, 77, 3, -1, 1),
    Sketcher.Constraint("Symmetric", 37, 3, 81, 3, -1, 1),
    Sketcher.Constraint("Symmetric", 41, 3, 85, 3, -1, 1),
    Sketcher.Constraint("Horizontal", 1, 3, 5, 3),
    Sketcher.Constraint("Horizontal", 3, 3, 7, 3),
    Sketcher.Constraint("Horizontal", 5, 3, 9, 3),
    Sketcher.Constraint("Horizontal", 7, 3, 11, 3),
    Sketcher.Constraint("Horizontal", 9, 3, 13, 3),
    Sketcher.Constraint("Horizontal", 11, 3, 15, 3),
    Sketcher.Constraint("Horizontal", 13, 3, 17, 3),
    Sketcher.Constraint("Horizontal", 15, 3, 19, 3),
    Sketcher.Constraint("Horizontal", 17, 3, 21, 3),
    Sketcher.Constraint("Horizontal", 19, 3, 23, 3),
    Sketcher.Constraint("Horizontal", 21, 3, 25, 3),
    Sketcher.Constraint("Horizontal", 23, 3, 27, 3),
    Sketcher.Constraint("Horizontal", 25, 3, 29, 3),
    Sketcher.Constraint("Horizontal", 27, 3, 31, 3),
    Sketcher.Constraint("Horizontal", 29, 3, 33, 3),
    Sketcher.Constraint("Horizontal", 31, 3, 35, 3),
    Sketcher.Constraint("Horizontal", 33, 3, 37, 3),
    Sketcher.Constraint("Horizontal", 35, 3, 39, 3),
    Sketcher.Constraint("Horizontal", 37, 3, 41, 3),
    Sketcher.Constraint("Horizontal", 39, 3, 43, 3),
    Sketcher.Constraint("Horizontal", 43, 3, 45, 3),
    Sketcher.Constraint("Horizontal", 41, 3, 47, 3),
    Sketcher.Constraint("Horizontal", 47, 3, 51, 3),
    Sketcher.Constraint("Horizontal", 51, 3, 55, 3),
    Sketcher.Constraint("Horizontal", 55, 3, 59, 3),
    Sketcher.Constraint("Horizontal", 59, 3, 63, 3),
    Sketcher.Constraint("Horizontal", 63, 3, 67, 3),
    Sketcher.Constraint("Horizontal", 67, 3, 71, 3),
    Sketcher.Constraint("Horizontal", 71, 3, 75, 3),
    Sketcher.Constraint("Horizontal", 75, 3, 79, 3),
    Sketcher.Constraint("Horizontal", 79, 3, 83, 3),
    Sketcher.Constraint("Horizontal", 83, 3, 87, 3),
    Sketcher.Constraint("Radius", 1, 5.0),
    Sketcher.Constraint("DistanceY", 0, 1, 0, 2, 80.0),
    Sketcher.Constraint("DistanceX", -1, 1, 1, 3, 167.5),
    Sketcher.Constraint("DistanceX", -1, 1, 5, 3, 154.5),
    Sketcher.Constraint("DistanceX", -1, 1, 9, 3, 141.5),
    Sketcher.Constraint("DistanceX", -1, 1, 13, 3, 128.5),
    Sketcher.Constraint("DistanceX", -1, 1, 17, 3, 115.5),
    Sketcher.Constraint("DistanceX", -1, 1, 21, 3, 102.5),
    Sketcher.Constraint("DistanceX", -1, 1, 25, 3, 89.5),
    Sketcher.Constraint("DistanceX", -1, 1, 29, 3, 76.5),
    Sketcher.Constraint("DistanceX", -1, 1, 33, 3, 63.5),
    Sketcher.Constraint("DistanceX", -1, 1, 37, 3, 50.5),
    Sketcher.Constraint("DistanceX", -1, 1, 41, 3, 37.5),
])
pocket4 = body.newObject("PartDesign::Pocket", "Pocket003")
pocket4.Profile = sketch6
pocket4.Length = 6
pocket4.Reversed = True

# Sketch on XY plane
sketch7 = body.newObject("Sketcher::SketchObject", "Sketch006")
sketch7.AttachmentSupport = (doc.getObject("XY_Plane"), [""])
sketch7.MapMode = "FlatFace"
sketch7.AttachmentOffset = App.Placement(V(0, 0, 8), App.Rotation())
sketch7.addGeometry([
    Part.LineSegment(V(-8, 25, 0), V(-8, 0, 0)),
    Part.ArcOfCircle(Part.Circle(V(0, 0, 0), V(0, 0, 1), 8), math.radians(180), math.radians(360)),
    Part.LineSegment(V(8, 0, 0), V(8, 25, 0)),
    Part.ArcOfCircle(Part.Circle(V(0, 25, 0), V(0, 0, 1), 8), math.radians(0), math.radians(180)),
], False)
sketch7.addConstraint([
    Sketcher.Constraint("Tangent", 0, 2, 1, 1),
    Sketcher.Constraint("Tangent", 1, 2, 2, 1),
    Sketcher.Constraint("Tangent", 2, 2, 3, 1),
    Sketcher.Constraint("Tangent", 3, 2, 0, 1),
    Sketcher.Constraint("Vertical", 0),
    Sketcher.Constraint("Vertical", 2),
    Sketcher.Constraint("Coincident", 1, 3, -1, 1),
    Sketcher.Constraint("Radius", 1, 7.5),
    Sketcher.Constraint("DistanceY", 0, 2, 0, 1, 25.0),
])
pocket5 = body.newObject("PartDesign::Pocket", "Pocket004")
pocket5.Profile = sketch7
pocket5.Length = 10

# Sketch on XY plane
sketch8 = body.newObject("Sketcher::SketchObject", "Sketch007")
sketch8.AttachmentSupport = (doc.getObject("XY_Plane"), [""])
sketch8.MapMode = "FlatFace"
sketch8.addGeometry([
    Part.Circle(V(160, -51, 0), V(0, 0, 1), 2.2),  # 0
    Part.Circle(V(96, -51, 0), V(0, 0, 1), 2.2),  # 1
    Part.Circle(V(32, -51, 0), V(0, 0, 1), 2.2),  # 2
    Part.Circle(V(-32, -51, 0), V(0, 0, 1), 2.2),  # 3
    Part.Circle(V(-96, -51, 0), V(0, 0, 1), 2.2),  # 4
    Part.Circle(V(-160, -51, 0), V(0, 0, 1), 2.2),  # 5
], False)
sketch8.addConstraint([
    Sketcher.Constraint("Equal", 0, 1),
    Sketcher.Constraint("Equal", 1, 2),
    Sketcher.Constraint("Equal", 2, 3),
    Sketcher.Constraint("Equal", 3, 4),
    Sketcher.Constraint("Equal", 4, 5),
    Sketcher.Constraint("Symmetric", 2, 3, 3, 3, -2),
    Sketcher.Constraint("Symmetric", 1, 3, 4, 3, -2),
    Sketcher.Constraint("Symmetric", 0, 3, 5, 3, -2),
    Sketcher.Constraint("Horizontal", 0, 3, 1, 3),
    Sketcher.Constraint("Horizontal", 1, 3, 2, 3),
    Sketcher.Constraint("Diameter", 0, 4.5),
    Sketcher.Constraint("DistanceX", -1, 1, 0, 3, 160.0),
    Sketcher.Constraint("DistanceY", 0, 3, -1, 1, 51.0),
    Sketcher.Constraint("DistanceX", -1, 1, 1, 3, 96.0),
    Sketcher.Constraint("DistanceX", -1, 1, 2, 3, 32.0),
])
doc.recompute()
hole2 = body.newObject("PartDesign::Hole", "Hole001")
hole2.Profile = sketch8
hole2.ThreadType = "None"
hole2.Diameter = 4.5
hole2.DepthType = "ThroughAll"
hole2.HoleCutType = "Countersink"
hole2.HoleCutDiameter = 9.4
hole2.HoleCutCountersinkAngle = 90
hole2.Reversed = True

# Sketch on XY plane
sketch9 = body.newObject("Sketcher::SketchObject", "Sketch008")
sketch9.AttachmentSupport = (doc.getObject("XY_Plane"), [""])
sketch9.MapMode = "FlatFace"
sketch9.addGeometry([
    Part.Circle(V(182.5, -48.5, 0), V(0, 0, 1), 1.6),  # 0
    Part.Circle(V(135.3, -48.5, 0), V(0, 0, 1), 1.6),  # 1
    Part.Circle(V(88.1, -48.5, 0), V(0, 0, 1), 1.6),  # 2
    Part.Circle(V(40.9, -48.5, 0), V(0, 0, 1), 1.6),  # 3
    Part.Circle(V(-40.9, -48.5, 0), V(0, 0, 1), 1.6),  # 4
    Part.Circle(V(-88.1, -48.5, 0), V(0, 0, 1), 1.6),  # 5
    Part.Circle(V(-135.3, -48.5, 0), V(0, 0, 1), 1.6),  # 6
    Part.Circle(V(-182.5, -48.5, 0), V(0, 0, 1), 1.6),  # 7
], False)
sketch9.addConstraint([
    Sketcher.Constraint("Equal", 0, 1),
    Sketcher.Constraint("Equal", 1, 2),
    Sketcher.Constraint("Equal", 2, 3),
    Sketcher.Constraint("Equal", 3, 4),
    Sketcher.Constraint("Equal", 4, 5),
    Sketcher.Constraint("Equal", 5, 6),
    Sketcher.Constraint("Equal", 6, 7),
    Sketcher.Constraint("Symmetric", 3, 3, 4, 3, -2),
    Sketcher.Constraint("Symmetric", 2, 3, 5, 3, -2),
    Sketcher.Constraint("Symmetric", 1, 3, 6, 3, -2),
    Sketcher.Constraint("Symmetric", 0, 3, 7, 3, -2),
    Sketcher.Constraint("Horizontal", 0, 3, 1, 3),
    Sketcher.Constraint("Horizontal", 1, 3, 2, 3),
    Sketcher.Constraint("Horizontal", 2, 3, 3, 3),
    Sketcher.Constraint("Diameter", 0, 3.3),
    Sketcher.Constraint("DistanceX", 4, 3, 2, 3, 129.0),
    Sketcher.Constraint("DistanceX", -1, 1, 0, 3, 182.5),
    Sketcher.Constraint("DistanceY", 0, 3, -1, 1, 48.5),
    Sketcher.Constraint("DistanceX", -1, 1, 1, 3, 135.3),
    Sketcher.Constraint("DistanceX", -1, 1, 2, 3, 88.1),
])
pocket6 = body.newObject("PartDesign::Pocket", "Pocket005")
pocket6.Profile = sketch9
pocket6.Length = 10
pocket6.Reversed = True

doc.recompute()
